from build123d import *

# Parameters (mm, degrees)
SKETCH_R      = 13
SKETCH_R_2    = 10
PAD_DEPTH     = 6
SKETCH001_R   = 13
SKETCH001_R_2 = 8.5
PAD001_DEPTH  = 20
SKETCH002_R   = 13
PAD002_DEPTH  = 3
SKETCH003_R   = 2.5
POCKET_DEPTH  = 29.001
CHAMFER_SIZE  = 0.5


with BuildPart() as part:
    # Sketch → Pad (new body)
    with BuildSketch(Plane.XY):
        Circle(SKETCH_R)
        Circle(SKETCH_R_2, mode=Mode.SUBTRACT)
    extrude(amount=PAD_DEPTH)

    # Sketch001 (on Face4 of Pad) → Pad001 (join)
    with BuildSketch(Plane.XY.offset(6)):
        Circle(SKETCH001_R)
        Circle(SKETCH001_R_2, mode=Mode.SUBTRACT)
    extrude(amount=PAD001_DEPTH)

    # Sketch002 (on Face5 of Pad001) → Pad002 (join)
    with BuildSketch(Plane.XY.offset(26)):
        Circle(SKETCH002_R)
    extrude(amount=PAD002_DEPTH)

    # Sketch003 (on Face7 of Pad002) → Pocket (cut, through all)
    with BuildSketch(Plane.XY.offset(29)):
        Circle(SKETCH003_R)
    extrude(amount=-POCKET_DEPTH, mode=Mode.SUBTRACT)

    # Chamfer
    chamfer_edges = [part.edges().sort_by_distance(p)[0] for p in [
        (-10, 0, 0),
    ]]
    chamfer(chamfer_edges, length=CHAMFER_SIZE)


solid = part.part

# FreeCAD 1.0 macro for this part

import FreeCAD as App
import Part
import Sketcher
from FreeCAD import Vector
Q = App.Units.Quantity


def edges_at(feature, points):
    """Names of the edges that pass closest to the given points."""
    edges = feature.Shape.Edges
    near = lambda p: min(range(len(edges)), key=lambda i: edges[i].distToShape(Part.Vertex(*p))[0])
    return sorted({f"Edge{near(p) + 1}" for p in points})

doc = App.newDocument("Part")
body = doc.addObject("PartDesign::Body", "Body")

sketch1 = body.newObject("Sketcher::SketchObject", "Sketch")
sketch1.AttachmentSupport = (doc.getObject("XY_Plane"), [""])
sketch1.MapMode = "FlatFace"
sketch1.addGeometry(Part.Circle(Vector(0, 0, 0), Vector(0, 0, 1), 13), False)
sketch1.addGeometry(Part.Circle(Vector(0, 0, 0), Vector(0, 0, 1), 10), False)
sketch1.addConstraint(Sketcher.Constraint("Coincident", 0, 3, -1, 1))
sketch1.addConstraint(Sketcher.Constraint("Coincident", 1, 3, -1, 1))
sketch1.addConstraint(Sketcher.Constraint("Diameter", 0, Q("26 mm")))
sketch1.addConstraint(Sketcher.Constraint("Diameter", 1, Q("20 mm")))
pad1 = body.newObject("PartDesign::Pad", "Pad")
pad1.Profile = sketch1
pad1.Length = 6

sketch2 = body.newObject("Sketcher::SketchObject", "Sketch001")
sketch2.AttachmentSupport = (doc.getObject("XY_Plane"), [""])
sketch2.MapMode = "FlatFace"
sketch2.AttachmentOffset = App.Placement(Vector(0, 0, 6), App.Rotation())
sketch2.addGeometry(Part.Circle(Vector(0, 0, 0), Vector(0, 0, 1), 13), False)
sketch2.addGeometry(Part.Circle(Vector(0, 0, 0), Vector(0, 0, 1), 8.5), False)
sketch2.addConstraint(Sketcher.Constraint("Coincident", 0, 3, -1, 1))
sketch2.addConstraint(Sketcher.Constraint("Coincident", 1, 3, -1, 1))
sketch2.addConstraint(Sketcher.Constraint("Diameter", 0, Q("26 mm")))
sketch2.addConstraint(Sketcher.Constraint("Diameter", 1, Q("17 mm")))
pad2 = body.newObject("PartDesign::Pad", "Pad001")
pad2.Profile = sketch2
pad2.Length = 20

sketch3 = body.newObject("Sketcher::SketchObject", "Sketch002")
sketch3.AttachmentSupport = (doc.getObject("XY_Plane"), [""])
sketch3.MapMode = "FlatFace"
sketch3.AttachmentOffset = App.Placement(Vector(0, 0, 26), App.Rotation())
sketch3.addGeometry(Part.Circle(Vector(0, 0, 0), Vector(0, 0, 1), 13), False)
sketch3.addConstraint(Sketcher.Constraint("Coincident", 0, 3, -1, 1))
sketch3.addConstraint(Sketcher.Constraint("Diameter", 0, Q("26 mm")))
pad3 = body.newObject("PartDesign::Pad", "Pad002")
pad3.Profile = sketch3
pad3.Length = 3

sketch4 = body.newObject("Sketcher::SketchObject", "Sketch003")
sketch4.AttachmentSupport = (doc.getObject("XY_Plane"), [""])
sketch4.MapMode = "FlatFace"
sketch4.AttachmentOffset = App.Placement(Vector(0, 0, 29), App.Rotation())
sketch4.addGeometry(Part.Circle(Vector(0, 0, 0), Vector(0, 0, 1), 2.5), False)
sketch4.addConstraint(Sketcher.Constraint("Coincident", 0, 3, -1, 1))
sketch4.addConstraint(Sketcher.Constraint("Diameter", 0, Q("5 mm")))
pocket1 = body.newObject("PartDesign::Pocket", "Pocket")
pocket1.Profile = sketch4
pocket1.Type = "ThroughAll"
doc.recompute()

chamfer = body.newObject("PartDesign::Chamfer", "Chamfer")
chamfer.Base = (pocket1, edges_at(pocket1, [(-10, 0, 0)]))
chamfer.Size = 0.5

doc.recompute()
